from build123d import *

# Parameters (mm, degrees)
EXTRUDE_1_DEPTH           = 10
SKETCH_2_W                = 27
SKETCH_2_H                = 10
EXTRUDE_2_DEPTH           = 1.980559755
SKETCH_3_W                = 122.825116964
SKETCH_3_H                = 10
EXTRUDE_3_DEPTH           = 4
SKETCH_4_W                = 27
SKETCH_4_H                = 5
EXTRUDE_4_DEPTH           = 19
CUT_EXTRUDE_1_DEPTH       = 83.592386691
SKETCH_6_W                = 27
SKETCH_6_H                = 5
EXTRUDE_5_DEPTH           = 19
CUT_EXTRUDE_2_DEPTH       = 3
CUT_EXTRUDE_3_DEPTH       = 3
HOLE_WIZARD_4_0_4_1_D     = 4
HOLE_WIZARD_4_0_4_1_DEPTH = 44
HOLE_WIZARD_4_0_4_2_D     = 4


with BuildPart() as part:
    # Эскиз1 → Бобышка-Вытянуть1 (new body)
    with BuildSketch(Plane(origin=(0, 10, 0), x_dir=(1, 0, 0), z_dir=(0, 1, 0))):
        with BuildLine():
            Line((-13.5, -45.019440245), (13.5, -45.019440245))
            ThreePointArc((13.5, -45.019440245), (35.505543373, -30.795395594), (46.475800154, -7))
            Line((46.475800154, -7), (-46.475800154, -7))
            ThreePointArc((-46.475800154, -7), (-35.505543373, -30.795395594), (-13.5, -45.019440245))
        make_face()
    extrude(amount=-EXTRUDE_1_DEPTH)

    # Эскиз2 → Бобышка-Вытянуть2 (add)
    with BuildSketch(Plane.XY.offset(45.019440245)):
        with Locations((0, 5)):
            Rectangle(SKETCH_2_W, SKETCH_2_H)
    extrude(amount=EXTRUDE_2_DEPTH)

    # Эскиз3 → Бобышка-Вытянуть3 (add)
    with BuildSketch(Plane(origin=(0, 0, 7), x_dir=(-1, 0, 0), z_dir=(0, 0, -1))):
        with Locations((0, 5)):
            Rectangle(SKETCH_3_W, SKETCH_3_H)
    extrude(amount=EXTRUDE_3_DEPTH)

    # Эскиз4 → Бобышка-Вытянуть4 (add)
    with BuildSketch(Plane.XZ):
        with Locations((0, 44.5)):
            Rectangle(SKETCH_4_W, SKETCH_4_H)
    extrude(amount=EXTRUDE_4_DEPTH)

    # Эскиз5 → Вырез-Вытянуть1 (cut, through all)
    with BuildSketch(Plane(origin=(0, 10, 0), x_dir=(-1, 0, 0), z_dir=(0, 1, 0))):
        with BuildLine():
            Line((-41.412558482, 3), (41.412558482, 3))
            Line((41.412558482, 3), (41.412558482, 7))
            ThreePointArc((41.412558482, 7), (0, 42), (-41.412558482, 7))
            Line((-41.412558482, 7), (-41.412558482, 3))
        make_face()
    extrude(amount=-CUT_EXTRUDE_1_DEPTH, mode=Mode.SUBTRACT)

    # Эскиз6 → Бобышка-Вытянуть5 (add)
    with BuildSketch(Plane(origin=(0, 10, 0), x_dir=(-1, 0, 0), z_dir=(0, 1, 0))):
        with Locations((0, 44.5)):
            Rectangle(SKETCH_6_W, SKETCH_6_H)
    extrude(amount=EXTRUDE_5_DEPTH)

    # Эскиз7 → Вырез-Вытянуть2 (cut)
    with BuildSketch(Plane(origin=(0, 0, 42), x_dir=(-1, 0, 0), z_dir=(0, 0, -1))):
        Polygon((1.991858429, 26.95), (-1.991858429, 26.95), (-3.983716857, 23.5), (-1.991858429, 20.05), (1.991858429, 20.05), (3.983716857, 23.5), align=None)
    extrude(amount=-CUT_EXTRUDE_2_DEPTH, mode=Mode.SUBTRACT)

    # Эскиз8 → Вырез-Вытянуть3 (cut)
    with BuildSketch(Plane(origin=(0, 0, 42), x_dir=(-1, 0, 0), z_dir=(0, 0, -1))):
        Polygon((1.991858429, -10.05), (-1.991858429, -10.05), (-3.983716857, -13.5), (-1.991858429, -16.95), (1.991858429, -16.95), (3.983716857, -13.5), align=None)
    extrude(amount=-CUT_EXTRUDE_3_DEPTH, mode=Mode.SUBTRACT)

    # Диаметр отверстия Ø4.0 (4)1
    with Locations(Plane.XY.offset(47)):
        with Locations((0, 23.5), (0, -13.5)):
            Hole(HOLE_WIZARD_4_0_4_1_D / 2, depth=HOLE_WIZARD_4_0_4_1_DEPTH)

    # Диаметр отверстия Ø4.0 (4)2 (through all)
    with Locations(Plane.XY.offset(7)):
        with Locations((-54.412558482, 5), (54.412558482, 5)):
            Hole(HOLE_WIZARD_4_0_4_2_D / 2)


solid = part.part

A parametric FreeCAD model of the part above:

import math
import FreeCAD as App
import Part
import Sketcher

V = App.Vector
Q = App.Units.Quantity

doc = App.newDocument("Part")
body = doc.addObject("PartDesign::Body", "Body")

sketch1 = body.newObject("Sketcher::SketchObject", "Sketch")
sketch1.AttachmentSupport = (doc.getObject("XZ_Plane"), [""])
sketch1.MapMode = "FlatFace"
sketch1.AttachmentOffset = App.Placement(V(0, 0, -10), App.Rotation())
sketch1.addGeometry([
    Part.LineSegment(V(-14, 45, 0), V(14, 45, 0)),
    Part.ArcOfCircle(Part.Circle(V(0, 0, 0), V(0, 0, 1), 47), math.radians(9), math.radians(73)),
    Part.LineSegment(V(46, 7, 0), V(-46, 7, 0)),
    Part.ArcOfCircle(Part.Circle(V(0, 0, 0), V(0, 0, 1), 47), math.radians(107), math.radians(171)),
], False)
sketch1.addConstraint([
    Sketcher.Constraint("Coincident", 0, 2, 1, 2),
    Sketcher.Constraint("Coincident", 1, 1, 2, 1),
    Sketcher.Constraint("Coincident", 2, 2, 3, 2),
    Sketcher.Constraint("Coincident", 3, 1, 0, 1),
    Sketcher.Constraint("Horizontal", 0),
    Sketcher.Constraint("Horizontal", 2),
    Sketcher.Constraint("Coincident", 1, 3, -1, 1),
    Sketcher.Constraint("Coincident", 3, 3, -1, 1),
    Sketcher.Constraint("Equal", 1, 3),
    Sketcher.Constraint("Radius", 1, Q("47 mm")),
    Sketcher.Constraint("DistanceX", 0, 1, 0, 2, Q("27 mm")),
    Sketcher.Constraint("DistanceY", -1, 1, 1, 1, Q("7 mm")),
])
pad1 = body.newObject("PartDesign::Pad", "Pad")
pad1.Profile = sketch1
pad1.Length = 10

sketch2 = body.newObject("Sketcher::SketchObject", "Sketch001")
sketch2.AttachmentSupport = (doc.getObject("XY_Plane"), [""])
sketch2.MapMode = "FlatFace"
sketch2.AttachmentOffset = App.Placement(V(0, 0, 45.01944), App.Rotation())
sketch2.addGeometry([
    Part.LineSegment(V(-14, 10, 0), V(-14, 0, 0)),
    Part.LineSegment(V(-14, 0, 0), V(14, 0, 0)),
    Part.LineSegment(V(14, 0, 0), V(14, 10, 0)),
    Part.LineSegment(V(14, 10, 0), V(-14, 10, 0)),
], False)
sketch2.addConstraint([
    Sketcher.Constraint("Coincident", 0, 2, 1, 1),
    Sketcher.Constraint("Coincident", 1, 2, 2, 1),
    Sketcher.Constraint("Coincident", 2, 2, 3, 1),
    Sketcher.Constraint("Coincident", 3, 2, 0, 1),
    Sketcher.Constraint("Vertical", 0),
    Sketcher.Constraint("Horizontal", 1),
    Sketcher.Constraint("Vertical", 2),
    Sketcher.Constraint("Horizontal", 3),
    Sketcher.Constraint("Symmetric", 0, 2, 1, 2, -1, 1),
    Sketcher.Constraint("DistanceX", 1, 1, 1, 2, Q("27 mm")),
    Sketcher.Constraint("DistanceY", 0, 2, 0, 1, Q("10 mm")),
])
pad2 = body.newObject("PartDesign::Pad", "Pad001")
pad2.Profile = sketch2
pad2.Length = 1.98056

sketch3 = body.newObject("Sketcher::SketchObject", "Sketch002")
sketch3.AttachmentSupport = (doc.getObject("XY_Plane"), [""])
sketch3.MapMode = "FlatFace"
sketch3.AttachmentOffset = App.Placement(V(0, 0, 7), App.Rotation())
sketch3.addGeometry([
    Part.LineSegment(V(61, 10, 0), V(61, 0, 0)),
    Part.LineSegment(V(61, 0, 0), V(-61, 0, 0)),
    Part.LineSegment(V(-61, 0, 0), V(-61, 10, 0)),
    Part.LineSegment(V(-61, 10, 0), V(61, 10, 0)),
], False)
sketch3.addConstraint([
    Sketcher.Constraint("Coincident", 0, 2, 1, 1),
    Sketcher.Constraint("Coincident", 1, 2, 2, 1),
    Sketcher.Constraint("Coincident", 2, 2, 3, 1),
    Sketcher.Constraint("Coincident", 3, 2, 0, 1),
    Sketcher.Constraint("Vertical", 0),
    Sketcher.Constraint("Horizontal", 1),
    Sketcher.Constraint("Vertical", 2),
    Sketcher.Constraint("Horizontal", 3),
    Sketcher.Constraint("Symmetric", 0, 2, 1, 2, -1, 1),
    Sketcher.Constraint("DistanceY", 0, 2, 0, 1, Q("10 mm")),
    Sketcher.Constraint("DistanceX", 1, 2, 1, 1, Q("122.825117 mm")),
])
pad3 = body.newObject("PartDesign::Pad", "Pad002")
pad3.Profile = sketch3
pad3.Length = 4
pad3.Reversed = True

sketch4 = body.newObject("Sketcher::SketchObject", "Sketch003")
sketch4.AttachmentSupport = (doc.getObject("XZ_Plane"), [""])
sketch4.MapMode = "FlatFace"
sketch4.addGeometry([
    Part.LineSegment(V(-14, 47, 0), V(-14, 42, 0)),
    Part.LineSegment(V(-14, 42, 0), V(14, 42, 0)),
    Part.LineSegment(V(14, 42, 0), V(14, 47, 0)),
    Part.LineSegment(V(14, 47, 0), V(-14, 47, 0)),
], False)
sketch4.addConstraint([
    Sketcher.Constraint("Coincident", 0, 2, 1, 1),
    Sketcher.Constraint("Coincident", 1, 2, 2, 1),
    Sketcher.Constraint("Coincident", 2, 2, 3, 1),
    Sketcher.Constraint("Coincident", 3, 2, 0, 1),
    Sketcher.Constraint("Vertical", 0),
    Sketcher.Constraint("Horizontal", 1),
    Sketcher.Constraint("Vertical", 2),
    Sketcher.Constraint("Horizontal", 3),
    Sketcher.Constraint("DistanceX", 1, 1, 1, 2, Q("27 mm")),
    Sketcher.Constraint("DistanceY", 0, 2, 0, 1, Q("5 mm")),
    Sketcher.Constraint("DistanceY", -1, 1, 0, 2, Q("42 mm")),
    Sketcher.Constraint("DistanceX", 0, 2, -1, 1, Q("13.5 mm")),
])
pad4 = body.newObject("PartDesign::Pad", "Pad003")
pad4.Profile = sketch4
pad4.Length = 19

sketch5 = body.newObject("Sketcher::SketchObject", "Sketch004")
sketch5.AttachmentSupport = (doc.getObject("XZ_Plane"), [""])
sketch5.MapMode = "FlatFace"
sketch5.AttachmentOffset = App.Placement(V(0, 0, -10), App.Rotation())
sketch5.addGeometry([
    Part.LineSegment(V(41.4, 3, 0), V(-41.4, 3, 0)),
    Part.LineSegment(V(-41.4, 3, 0), V(-41.4, 7, 0)),
    Part.ArcOfCircle(Part.Circle(V(0, 0, 0), V(0, 0, 1), 42), math.radians(10), math.radians(170)),
    Part.LineSegment(V(41.4, 7, 0), V(41.4, 3, 0)),
], False)
sketch5.addConstraint([
    Sketcher.Constraint("Coincident", 0, 2, 1, 1),
    Sketcher.Constraint("Coincident", 1, 2, 2, 2),
    Sketcher.Constraint("Coincident", 2, 1, 3, 1),
    Sketcher.Constraint("Coincident", 3, 2, 0, 1),
    Sketcher.Constraint("Horizontal", 0),
    Sketcher.Constraint("Vertical", 1),
    Sketcher.Constraint("Vertical", 3),
    Sketcher.Constraint("Coincident", 2, 3, -1, 1),
    Sketcher.Constraint("Horizontal", 1, 2, 2, 1),
    Sketcher.Constraint("Radius", 2, Q("42 mm")),
    Sketcher.Constraint("DistanceY", 1, 1, 1, 2, Q("4 mm")),
    Sketcher.Constraint("DistanceY", -1, 1, 0, 2, Q("3 mm")),
])
pocket1 = body.newObject("PartDesign::Pocket", "Pocket")
pocket1.Profile = sketch5
pocket1.Type = "ThroughAll"
pocket1.Reversed = True

sketch6 = body.newObject("Sketcher::SketchObject", "Sketch005")
sketch6.AttachmentSupport = (doc.getObject("XZ_Plane"), [""])
sketch6.MapMode = "FlatFace"
sketch6.AttachmentOffset = App.Placement(V(0, 0, -10), App.Rotation())
sketch6.addGeometry([
    Part.LineSegment(V(14, 47, 0), V(14, 42, 0)),
    Part.LineSegment(V(14, 42, 0), V(-14, 42, 0)),
    Part.LineSegment(V(-14, 42, 0), V(-14, 47, 0)),
    Part.LineSegment(V(-14, 47, 0), V(14, 47, 0)),
], False)
sketch6.addConstraint([
    Sketcher.Constraint("Coincident", 0, 2, 1, 1),
    Sketcher.Constraint("Coincident", 1, 2, 2, 1),
    Sketcher.Constraint("Coincident", 2, 2, 3, 1),
    Sketcher.Constraint("Coincident", 3, 2, 0, 1),
    Sketcher.Constraint("Vertical", 0),
    Sketcher.Constraint("Horizontal", 1),
    Sketcher.Constraint("Vertical", 2),
    Sketcher.Constraint("Horizontal", 3),
    Sketcher.Constraint("DistanceX", 1, 2, 1, 1, Q("27 mm")),
    Sketcher.Constraint("DistanceY", 0, 2, 0, 1, Q("5 mm")),
    Sketcher.Constraint("DistanceY", -1, 1, 0, 2, Q("42 mm")),
    Sketcher.Constraint("DistanceX", -1, 1, 0, 2, Q("13.5 mm")),
])
pad5 = body.newObject("PartDesign::Pad", "Pad004")
pad5.Profile = sketch6
pad5.Length = 19
pad5.Reversed = True

sketch7 = body.newObject("Sketcher::SketchObject", "Sketch006")
sketch7.AttachmentSupport = (doc.getObject("XY_Plane"), [""])
sketch7.MapMode = "FlatFace"
sketch7.AttachmentOffset = App.Placement(V(0, 0, 42), App.Rotation())
sketch7.addGeometry([
    Part.LineSegment(V(-2, 26.9, 0), V(2, 26.9, 0)),
    Part.LineSegment(V(2, 26.9, 0), V(4, 23.5, 0)),
    Part.LineSegment(V(4, 23.5, 0), V(2, 20.1, 0)),
    Part.LineSegment(V(2, 20.1, 0), V(-2, 20.1, 0)),
    Part.LineSegment(V(-2, 20.1, 0), V(-4, 23.5, 0)),
    Part.LineSegment(V(-4, 23.5, 0), V(-2, 26.9, 0)),
], False)
sketch7.addConstraint([
    Sketcher.Constraint("Coincident", 0, 2, 1, 1),
    Sketcher.Constraint("Coincident", 1, 2, 2, 1),
    Sketcher.Constraint("Coincident", 2, 2, 3, 1),
    Sketcher.Constraint("Coincident", 3, 2, 4, 1),
    Sketcher.Constraint("Coincident", 4, 2, 5, 1),
    Sketcher.Constraint("Coincident", 5, 2, 0, 1),
    Sketcher.Constraint("Horizontal", 0),
    Sketcher.Constraint("Horizontal", 3),
    Sketcher.Constraint("Symmetric", 1, 2, 4, 2, -2),
    Sketcher.Constraint("Parallel", 1, 4),
    Sketcher.Constraint("Parallel", 2, 5),
    Sketcher.Constraint("Vertical", 0, 2, 2, 2),
    Sketcher.Constraint("Vertical", 3, 2, 5, 2),
    Sketcher.Constraint("Angle", 1, Q("-60 deg")),
    Sketcher.Constraint("DistanceY", -1, 1, 1, 2, Q("23.5 mm")),
    Sketcher.Constraint("DistanceY", 2, 2, 0, 2, Q("6.9 mm")),
    Sketcher.Constraint("DistanceX", 0, 1, 0, 2, Q("3.983717 mm")),
])
pocket2 = body.newObject("PartDesign::Pocket", "Pocket001")
pocket2.Profile = sketch7
pocket2.Length = 3
pocket2.Reversed = True

sketch8 = body.newObject("Sketcher::SketchObject", "Sketch007")
sketch8.AttachmentSupport = (doc.getObject("XY_Plane"), [""])
sketch8.MapMode = "FlatFace"
sketch8.AttachmentOffset = App.Placement(V(0, 0, 42), App.Rotation())
sketch8.addGeometry([
    Part.LineSegment(V(-2, -10.1, 0), V(2, -10.1, 0)),
    Part.LineSegment(V(2, -10.1, 0), V(4, -13.5, 0)),
    Part.LineSegment(V(4, -13.5, 0), V(2, -16.9, 0)),
    Part.LineSegment(V(2, -16.9, 0), V(-2, -16.9, 0)),
    Part.LineSegment(V(-2, -16.9, 0), V(-4, -13.5, 0)),
    Part.LineSegment(V(-4, -13.5, 0), V(-2, -10.1, 0)),
], False)
sketch8.addConstraint([
    Sketcher.Constraint("Coincident", 0, 2, 1, 1),
    Sketcher.Constraint("Coincident", 1, 2, 2, 1),
    Sketcher.Constraint("Coincident", 2, 2, 3, 1),
    Sketcher.Constraint("Coincident", 3, 2, 4, 1),
    Sketcher.Constraint("Coincident", 4, 2, 5, 1),
    Sketcher.Constraint("Coincident", 5, 2, 0, 1),
    Sketcher.Constraint("Horizontal", 0),
    Sketcher.Constraint("Horizontal", 3),
    Sketcher.Constraint("Symmetric", 1, 2, 4, 2, -2),
    Sketcher.Constraint("Parallel", 1, 4),
    Sketcher.Constraint("Parallel", 2, 5),
    Sketcher.Constraint("Vertical", 0, 2, 2, 2),
    Sketcher.Constraint("Vertical", 3, 2, 5, 2),
    Sketcher.Constraint("Angle", 1, Q("-60 deg")),
    Sketcher.Constraint("DistanceY", 1, 2, -1, 1, Q("13.5 mm")),
    Sketcher.Constraint("DistanceY", 2, 2, 0, 2, Q("6.9 mm")),
    Sketcher.Constraint("DistanceX", 0, 1, 0, 2, Q("3.983717 mm")),
])
pocket3 = body.newObject("PartDesign::Pocket", "Pocket002")
pocket3.Profile = sketch8
pocket3.Length = 3
pocket3.Reversed = True

sketch9 = body.newObject("Sketcher::SketchObject", "Sketch008")
sketch9.AttachmentSupport = (doc.getObject("XY_Plane"), [""])
sketch9.MapMode = "FlatFace"
sketch9.AttachmentOffset = App.Placement(V(0, 0, 47), App.Rotation())
sketch9.addGeometry([
    Part.Circle(V(0, 23.5, 0), V(0, 0, 1), 2),
    Part.Circle(V(0, -13.5, 0), V(0, 0, 1), 2),
], False)
sketch9.addConstraint([
    Sketcher.Constraint("Equal", 0, 1),
    Sketcher.Constraint("PointOnObject", 0, 3, -2),
    Sketcher.Constraint("PointOnObject", 1, 3, -2),
    Sketcher.Constraint("Diameter", 0, Q("4 mm")),
    Sketcher.Constraint("DistanceY", 1, 3, 0, 3, Q("37 mm")),
    Sketcher.Constraint("DistanceY", -1, 1, 0, 3, Q("23.5 mm")),
])
doc.recompute()
hole = body.newObject("PartDesign::Hole", "Hole")
hole.Profile = sketch9
hole.ThreadType = "None"
hole.Diameter = 4
hole.DepthType = "Dimension"
hole.Depth = 44
hole.DrillPoint = "Flat"

sketch10 = body.newObject("Sketcher::SketchObject", "Sketch009")
sketch10.AttachmentSupport = (doc.getObject("XY_Plane"), [""])
sketch10.MapMode = "FlatFace"
sketch10.AttachmentOffset = App.Placement(V(0, 0, 7), App.Rotation())
sketch10.addGeometry([
    Part.Circle(V(-54.4, 5, 0), V(0, 0, 1), 2),
    Part.Circle(V(54.4, 5, 0), V(0, 0, 1), 2),
], False)
sketch10.addConstraint([
    Sketcher.Constraint("Equal", 0, 1),
    Sketcher.Constraint("Symmetric", 0, 3, 1, 3, -2),
    Sketcher.Constraint("Diameter", 0, Q("4 mm")),
    Sketcher.Constraint("DistanceY", -1, 1, 0, 3, Q("5 mm")),
    Sketcher.Constraint("DistanceX", 0, 3, -1, 1, Q("54.412558 mm")),
])
doc.recompute()
hole2 = body.newObject("PartDesign::Hole", "Hole001")
hole2.Profile = sketch10
hole2.ThreadType = "None"
hole2.Diameter = 4
hole2.DepthType = "ThroughAll"

doc.recompute()
